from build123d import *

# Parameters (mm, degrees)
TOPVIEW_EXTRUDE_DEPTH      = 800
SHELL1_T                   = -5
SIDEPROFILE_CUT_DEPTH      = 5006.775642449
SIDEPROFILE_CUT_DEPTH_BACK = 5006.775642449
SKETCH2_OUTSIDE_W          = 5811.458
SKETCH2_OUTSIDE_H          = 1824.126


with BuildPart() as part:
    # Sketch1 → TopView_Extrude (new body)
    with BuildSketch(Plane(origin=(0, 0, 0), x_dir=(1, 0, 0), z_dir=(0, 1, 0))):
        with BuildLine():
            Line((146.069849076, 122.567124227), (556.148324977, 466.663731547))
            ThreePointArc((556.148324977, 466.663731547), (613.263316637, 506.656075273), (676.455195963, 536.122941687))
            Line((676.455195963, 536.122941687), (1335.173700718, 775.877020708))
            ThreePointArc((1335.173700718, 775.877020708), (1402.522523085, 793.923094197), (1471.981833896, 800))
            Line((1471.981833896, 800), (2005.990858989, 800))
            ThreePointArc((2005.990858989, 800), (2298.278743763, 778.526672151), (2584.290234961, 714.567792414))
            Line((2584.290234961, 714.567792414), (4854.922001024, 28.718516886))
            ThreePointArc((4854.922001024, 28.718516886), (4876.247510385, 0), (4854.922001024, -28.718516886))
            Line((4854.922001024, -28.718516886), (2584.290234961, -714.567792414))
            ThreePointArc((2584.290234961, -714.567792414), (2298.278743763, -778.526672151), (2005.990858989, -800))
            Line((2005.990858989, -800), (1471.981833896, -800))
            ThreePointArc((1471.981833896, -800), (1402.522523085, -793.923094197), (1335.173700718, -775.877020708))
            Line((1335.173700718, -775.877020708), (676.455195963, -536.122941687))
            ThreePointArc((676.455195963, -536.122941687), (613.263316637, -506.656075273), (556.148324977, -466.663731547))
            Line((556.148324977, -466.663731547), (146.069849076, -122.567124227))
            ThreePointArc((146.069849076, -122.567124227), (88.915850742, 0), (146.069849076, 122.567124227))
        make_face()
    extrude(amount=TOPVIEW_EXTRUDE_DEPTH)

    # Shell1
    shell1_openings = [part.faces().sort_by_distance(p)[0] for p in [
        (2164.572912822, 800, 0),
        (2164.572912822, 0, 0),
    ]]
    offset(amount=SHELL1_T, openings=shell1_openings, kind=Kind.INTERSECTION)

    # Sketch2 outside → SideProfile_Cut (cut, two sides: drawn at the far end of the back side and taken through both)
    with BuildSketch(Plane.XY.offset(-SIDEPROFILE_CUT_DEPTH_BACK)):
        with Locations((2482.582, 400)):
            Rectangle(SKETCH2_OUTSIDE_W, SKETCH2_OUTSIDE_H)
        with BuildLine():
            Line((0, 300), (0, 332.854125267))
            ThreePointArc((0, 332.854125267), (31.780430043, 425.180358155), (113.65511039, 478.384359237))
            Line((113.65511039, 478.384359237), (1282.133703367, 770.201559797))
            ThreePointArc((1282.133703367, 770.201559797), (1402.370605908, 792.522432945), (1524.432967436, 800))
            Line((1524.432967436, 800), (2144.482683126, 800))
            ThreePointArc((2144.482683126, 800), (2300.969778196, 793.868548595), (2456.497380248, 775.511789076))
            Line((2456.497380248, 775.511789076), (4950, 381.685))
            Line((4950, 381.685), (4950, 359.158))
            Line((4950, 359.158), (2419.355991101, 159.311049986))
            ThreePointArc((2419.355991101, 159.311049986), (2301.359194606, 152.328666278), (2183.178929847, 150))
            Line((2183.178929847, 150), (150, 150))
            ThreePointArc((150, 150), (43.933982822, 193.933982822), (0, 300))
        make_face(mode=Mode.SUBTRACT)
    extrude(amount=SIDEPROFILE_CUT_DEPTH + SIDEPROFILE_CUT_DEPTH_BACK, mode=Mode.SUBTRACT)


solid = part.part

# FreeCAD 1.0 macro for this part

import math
import FreeCAD as App
import Part
import Sketcher


def faces_at(feature, points):
    """Names of the faces that lie closest to the given points."""
    faces = feature.Shape.Faces
    near = lambda p: min(range(len(faces)), key=lambda i: faces[i].distToShape(Part.Vertex(*p))[0])
    return sorted({f"Face{near(p) + 1}" for p in points})


def add_polygon(sketch, points):
    """Adds a closed chain of lines whose ends are joined by coincident constraints."""
    first, n = sketch.GeometryCount, len(points)
    for a, b in zip(points, points[1:] + points[:1]):
        sketch.addGeometry(Part.LineSegment(App.Vector(*a, 0), App.Vector(*b, 0)), False)
    for i in range(n):
        sketch.addConstraint(Sketcher.Constraint("Coincident", first + i, 2, first + (i + 1) % n, 1))

doc = App.newDocument("Part")
body = doc.addObject("PartDesign::Body", "Body")

# Sketch on XZ plane
sketch1 = body.newObject("Sketcher::SketchObject", "Sketch")
sketch1.AttachmentSupport = (doc.getObject("XZ_Plane"), [""])
sketch1.MapMode = "FlatFace"
sketch1.addGeometry([
    Part.LineSegment(App.Vector(556.148325, -466.663732, 0), App.Vector(146.069849, -122.567124, 0)),  # 0
    Part.ArcOfCircle(Part.Circle(App.Vector(248.915851, 0, 0), App.Vector(0, 0, 1), 160), math.radians(129.999993), math.radians(230.000007)),  # 1
    Part.LineSegment(App.Vector(146.069849, 122.567124, 0), App.Vector(556.148325, 466.663732, 0)),  # 2
    Part.ArcOfCircle(Part.Circle(App.Vector(813.263329, 160.245921, 0), App.Vector(0, 0, 1), 400), math.radians(110.000012), math.radians(129.999993)),  # 3
    Part.LineSegment(App.Vector(676.455196, 536.122942, 0), App.Vector(1335.173701, 775.877021, 0)),  # 4
    Part.ArcOfCircle(Part.Circle(App.Vector(1471.981834, 400, 0), App.Vector(0, 0, 1), 400), math.radians(90), math.radians(110.000012)),  # 5
    Part.LineSegment(App.Vector(1471.981834, 800, 0), App.Vector(2005.990859, 800, 0)),  # 6
    Part.ArcOfCircle(Part.Circle(App.Vector(2005.990859, -1200, 0), App.Vector(0, 0, 1), 2000), math.radians(73.192944), math.radians(90)),  # 7
    Part.LineSegment(App.Vector(2584.290235, 714.567792, 0), App.Vector(4854.922001, 28.718517, 0)),  # 8
    Part.ArcOfCircle(Part.Circle(App.Vector(4846.24751, 0, 0), App.Vector(0, 0, 1), 30), math.radians(-73.192944), math.radians(73.192944)),  # 9
    Part.LineSegment(App.Vector(4854.922001, -28.718517, 0), App.Vector(2584.290235, -714.567792, 0)),  # 10
    Part.ArcOfCircle(Part.Circle(App.Vector(2005.990859, 1200, 0), App.Vector(0, 0, 1), 2000), math.radians(-90), math.radians(-73.192944)),  # 11
    Part.LineSegment(App.Vector(2005.990859, -800, 0), App.Vector(1471.981834, -800, 0)),  # 12
    Part.ArcOfCircle(Part.Circle(App.Vector(1471.981834, -400, 0), App.Vector(0, 0, 1), 400), math.radians(-110.000012), math.radians(-90)),  # 13
    Part.LineSegment(App.Vector(1335.173701, -775.877021, 0), App.Vector(676.455196, -536.122942, 0)),  # 14
    Part.ArcOfCircle(Part.Circle(App.Vector(813.263329, -160.245921, 0), App.Vector(0, 0, 1), 400), math.radians(-129.999993), math.radians(-110.000012)),  # 15
], False)
sketch1.addConstraint([
    Sketcher.Constraint("Coincident", 0, 2, 1, 2),
    Sketcher.Constraint("Coincident", 1, 1, 2, 1),
    Sketcher.Constraint("Coincident", 2, 2, 3, 2),
    Sketcher.Constraint("Coincident", 3, 1, 4, 1),
    Sketcher.Constraint("Coincident", 4, 2, 5, 2),
    Sketcher.Constraint("Coincident", 5, 1, 6, 1),
    Sketcher.Constraint("Coincident", 6, 2, 7, 2),
    Sketcher.Constraint("Coincident", 7, 1, 8, 1),
    Sketcher.Constraint("Coincident", 8, 2, 9, 2),
    Sketcher.Constraint("Coincident", 9, 1, 10, 1),
    Sketcher.Constraint("Coincident", 10, 2, 11, 2),
    Sketcher.Constraint("Coincident", 11, 1, 12, 1),
    Sketcher.Constraint("Coincident", 12, 2, 13, 2),
    Sketcher.Constraint("Coincident", 13, 1, 14, 1),
    Sketcher.Constraint("Coincident", 14, 2, 15, 2),
    Sketcher.Constraint("Coincident", 15, 1, 0, 1),
    Sketcher.Constraint("Horizontal", 6),
    Sketcher.Constraint("Horizontal", 12),
    Sketcher.Constraint("PointOnObject", 1, 3, -1),
    Sketcher.Constraint("PointOnObject", 9, 3, -1),
    Sketcher.Constraint("Radius", 1, 160.0),
    Sketcher.Constraint("Radius", 3, 400.0),
    Sketcher.Constraint("Radius", 5, 400.0),
    Sketcher.Constraint("Radius", 7, 2000.0),
    Sketcher.Constraint("Radius", 9, 30.0),
    Sketcher.Constraint("Radius", 11, 2000.0),
    Sketcher.Constraint("Radius", 13, 400.0),
    Sketcher.Constraint("Radius", 15, 400.0),
    Sketcher.Constraint("DistanceY", -1, 1, 5, 3, 400.0),
    Sketcher.Constraint("DistanceY", -1, 1, 11, 3, 1200.0),
    Sketcher.Constraint("DistanceX", -1, 1, 8, 2, 4854.922001),
    Sketcher.Constraint("DistanceX", -1, 1, 9, 1, 4854.922001),
    Sketcher.Constraint("DistanceX", 0, 2, 1, 3, 102.846002),
    Sketcher.Constraint("DistanceX", 1, 1, 1, 3, 102.846002),
    Sketcher.Constraint("DistanceX", -1, 1, 4, 2, 1335.173701),
    Sketcher.Constraint("DistanceX", -1, 1, 13, 1, 1335.173701),
    Sketcher.Constraint("DistanceY", 3, 3, 4, 2, 615.6311),
    Sketcher.Constraint("DistanceX", 13, 3, 10, 2, 1112.308401),
    Sketcher.Constraint("DistanceX", 5, 3, 10, 2, 1112.308401),
    Sketcher.Constraint("DistanceX", 12, 2, 10, 2, 1112.308401),
    Sketcher.Constraint("DistanceY", 13, 1, 15, 3, 615.6311),
    Sketcher.Constraint("DistanceX", 6, 1, 6, 2, 534.009025),
    Sketcher.Constraint("DistanceX", 12, 2, 12, 1, 534.009025),
    Sketcher.Constraint("DistanceX", -1, 1, 1, 3, 248.915851),
    Sketcher.Constraint("DistanceX", -1, 1, 3, 3, 813.263329),
    Sketcher.Constraint("DistanceY", -1, 1, 3, 3, 160.245921),
    Sketcher.Constraint("DistanceX", -1, 1, 7, 3, 2005.990859),
    Sketcher.Constraint("DistanceX", -1, 1, 9, 3, 4846.24751),
    Sketcher.Constraint("DistanceX", -1, 1, 11, 3, 2005.990859),
    Sketcher.Constraint("DistanceX", -1, 1, 15, 3, 813.263329),
    Sketcher.Constraint("DistanceY", -1, 1, 2, 2, 466.663732),
    Sketcher.Constraint("DistanceY", -1, 1, 3, 1, 536.122942),
    Sketcher.Constraint("DistanceX", -1, 1, 6, 2, 2005.990859),
    Sketcher.Constraint("DistanceY", 14, 2, -1, 1, 536.122942),
    Sketcher.Constraint("DistanceY", 15, 1, -1, 1, 466.663732),
    Sketcher.Constraint("Distance", 8, 2371.952328),
])
pad1 = body.newObject("PartDesign::Pad", "Pad")
pad1.Profile = sketch1
pad1.Length = 800
pad1.Reversed = True
doc.recompute()

thickness = body.newObject("PartDesign::Thickness", "Thickness")
thickness.Base = (pad1, faces_at(pad1, [(2482.582, 800, 0), (2482.582, 0, 0)]))
thickness.Value = 5
thickness.Reversed = True
thickness.Join = "Intersection"

# Sketch on XY plane
sketch2 = body.newObject("Sketcher::SketchObject", "Sketch001")
sketch2.AttachmentSupport = (doc.getObject("XY_Plane"), [""])
sketch2.MapMode = "FlatFace"
add_polygon(sketch2, [(-423, 1312), (-423, -512), (5388, -512), (5388, 1312)])  # lines 0-3
sketch2.addGeometry(Part.ArcOfCircle(Part.Circle(App.Vector(150, 300, 0), App.Vector(0, 0, 1), 150), math.radians(180), math.radians(270)), False)  # 4
sketch2.addGeometry(Part.LineSegment(App.Vector(0, 300, 0), App.Vector(0, 333, 0)), False)  # 5
sketch2.addGeometry(Part.ArcOfCircle(Part.Circle(App.Vector(150, 333, 0), App.Vector(0, 0, 1), 150), math.radians(104), math.radians(180)), False)  # 6
sketch2.addGeometry(Part.LineSegment(App.Vector(114, 478, 0), App.Vector(1282, 770, 0)), False)  # 7
sketch2.addGeometry(Part.ArcOfCircle(Part.Circle(App.Vector(1524, -200, 0), App.Vector(0, 0, 1), 1000), math.radians(90), math.radians(104.02)), False)  # 8
sketch2.addGeometry(Part.LineSegment(App.Vector(1524, 800, 0), App.Vector(2144, 800, 0)), False)  # 9
sketch2.addGeometry(Part.ArcOfCircle(Part.Circle(App.Vector(2144, -1200, 0), App.Vector(0, 0, 1), 2000), math.radians(81.02), math.radians(90)), False)  # 10
sketch2.addGeometry(Part.LineSegment(App.Vector(2456, 776, 0), App.Vector(4950, 382, 0)), False)  # 11
sketch2.addGeometry(Part.LineSegment(App.Vector(4950, 382, 0), App.Vector(4950, 359, 0)), False)  # 12
sketch2.addGeometry(Part.LineSegment(App.Vector(4950, 359, 0), App.Vector(2419, 159, 0)), False)  # 13
sketch2.addGeometry(Part.ArcOfCircle(Part.Circle(App.Vector(2183, 3150, 0), App.Vector(0, 0, 1), 3000), math.radians(-90), math.radians(-85.48)), False)  # 14
sketch2.addGeometry(Part.LineSegment(App.Vector(2183, 150, 0), App.Vector(150, 150, 0)), False)  # 15
sketch2.addConstraint([
    Sketcher.Constraint("Tangent", 4, 1, 5, 1),
    Sketcher.Constraint("Tangent", 5, 2, 6, 2),
    Sketcher.Constraint("Tangent", 6, 1, 7, 1),
    Sketcher.Constraint("Coincident", 7, 2, 8, 2),
    Sketcher.Constraint("Tangent", 8, 1, 9, 1),
    Sketcher.Constraint("Coincident", 9, 2, 10, 2),
    Sketcher.Constraint("Coincident", 10, 1, 11, 1),
    Sketcher.Constraint("Coincident", 11, 2, 12, 1),
    Sketcher.Constraint("Coincident", 12, 2, 13, 1),
    Sketcher.Constraint("Coincident", 13, 2, 14, 2),
    Sketcher.Constraint("Coincident", 14, 1, 15, 1),
    Sketcher.Constraint("Tangent", 15, 2, 4, 2),
    Sketcher.Constraint("Vertical", 0),
    Sketcher.Constraint("Horizontal", 1),
    Sketcher.Constraint("Vertical", 2),
    Sketcher.Constraint("Horizontal", 3),
    Sketcher.Constraint("Vertical", 5),
    Sketcher.Constraint("Horizontal", 9),
    Sketcher.Constraint("Vertical", 12),
    Sketcher.Constraint("Horizontal", 15),
    Sketcher.Constraint("Equal", 4, 6),
    Sketcher.Constraint("PointOnObject", 4, 1, -2),
    Sketcher.Constraint("Vertical", 10, 3, 9, 2),
    Sketcher.Constraint("Radius", 4, 150.0),
    Sketcher.Constraint("Radius", 8, 1000.0),
    Sketcher.Constraint("Radius", 10, 2000.0),
    Sketcher.Constraint("Radius", 14, 3000.0),
    Sketcher.Constraint("DistanceY", -1, 1, 4, 3, 300.0),
    Sketcher.Constraint("DistanceY", 8, 3, -1, 1, 200.0),
    Sketcher.Constraint("DistanceX", -1, 1, 11, 2, 4950.0),
    Sketcher.Constraint("DistanceX", 1, 1, 1, 2, 5811.458),
    Sketcher.Constraint("DistanceY", 0, 2, 0, 1, 1824.126),
    Sketcher.Constraint("DistanceY", 12, 2, 12, 1, 22.527),
    Sketcher.Constraint("DistanceX", 0, 2, -1, 1, 423.147),
    Sketcher.Constraint("DistanceY", 0, 2, -1, 1, 512.063),
    Sketcher.Constraint("DistanceY", -1, 1, 11, 2, 381.685),
    Sketcher.Constraint("DistanceX", 15, 2, 15, 1, 2033.17893),
    Sketcher.Constraint("DistanceY", 6, 1, 7, 2, 291.817201),
    Sketcher.Constraint("Distance", 13, 2538.52278),
    Sketcher.Constraint("DistanceX", 9, 1, 9, 2, 620.049716),
    Sketcher.Constraint("DistanceY", 5, 1, 5, 2, 32.854125),
    Sketcher.Constraint("DistanceX", -1, 1, 14, 3, 2183.17893),
    Sketcher.Constraint("DistanceY", -1, 1, 7, 2, 770.20156),
    Sketcher.Constraint("Distance", 11, 2524.411784),
])
pocket1 = body.newObject("PartDesign::Pocket", "Pocket")
pocket1.Profile = sketch2
pocket1.Type = "ThroughAll"
pocket1.Midplane = True

doc.recompute()
